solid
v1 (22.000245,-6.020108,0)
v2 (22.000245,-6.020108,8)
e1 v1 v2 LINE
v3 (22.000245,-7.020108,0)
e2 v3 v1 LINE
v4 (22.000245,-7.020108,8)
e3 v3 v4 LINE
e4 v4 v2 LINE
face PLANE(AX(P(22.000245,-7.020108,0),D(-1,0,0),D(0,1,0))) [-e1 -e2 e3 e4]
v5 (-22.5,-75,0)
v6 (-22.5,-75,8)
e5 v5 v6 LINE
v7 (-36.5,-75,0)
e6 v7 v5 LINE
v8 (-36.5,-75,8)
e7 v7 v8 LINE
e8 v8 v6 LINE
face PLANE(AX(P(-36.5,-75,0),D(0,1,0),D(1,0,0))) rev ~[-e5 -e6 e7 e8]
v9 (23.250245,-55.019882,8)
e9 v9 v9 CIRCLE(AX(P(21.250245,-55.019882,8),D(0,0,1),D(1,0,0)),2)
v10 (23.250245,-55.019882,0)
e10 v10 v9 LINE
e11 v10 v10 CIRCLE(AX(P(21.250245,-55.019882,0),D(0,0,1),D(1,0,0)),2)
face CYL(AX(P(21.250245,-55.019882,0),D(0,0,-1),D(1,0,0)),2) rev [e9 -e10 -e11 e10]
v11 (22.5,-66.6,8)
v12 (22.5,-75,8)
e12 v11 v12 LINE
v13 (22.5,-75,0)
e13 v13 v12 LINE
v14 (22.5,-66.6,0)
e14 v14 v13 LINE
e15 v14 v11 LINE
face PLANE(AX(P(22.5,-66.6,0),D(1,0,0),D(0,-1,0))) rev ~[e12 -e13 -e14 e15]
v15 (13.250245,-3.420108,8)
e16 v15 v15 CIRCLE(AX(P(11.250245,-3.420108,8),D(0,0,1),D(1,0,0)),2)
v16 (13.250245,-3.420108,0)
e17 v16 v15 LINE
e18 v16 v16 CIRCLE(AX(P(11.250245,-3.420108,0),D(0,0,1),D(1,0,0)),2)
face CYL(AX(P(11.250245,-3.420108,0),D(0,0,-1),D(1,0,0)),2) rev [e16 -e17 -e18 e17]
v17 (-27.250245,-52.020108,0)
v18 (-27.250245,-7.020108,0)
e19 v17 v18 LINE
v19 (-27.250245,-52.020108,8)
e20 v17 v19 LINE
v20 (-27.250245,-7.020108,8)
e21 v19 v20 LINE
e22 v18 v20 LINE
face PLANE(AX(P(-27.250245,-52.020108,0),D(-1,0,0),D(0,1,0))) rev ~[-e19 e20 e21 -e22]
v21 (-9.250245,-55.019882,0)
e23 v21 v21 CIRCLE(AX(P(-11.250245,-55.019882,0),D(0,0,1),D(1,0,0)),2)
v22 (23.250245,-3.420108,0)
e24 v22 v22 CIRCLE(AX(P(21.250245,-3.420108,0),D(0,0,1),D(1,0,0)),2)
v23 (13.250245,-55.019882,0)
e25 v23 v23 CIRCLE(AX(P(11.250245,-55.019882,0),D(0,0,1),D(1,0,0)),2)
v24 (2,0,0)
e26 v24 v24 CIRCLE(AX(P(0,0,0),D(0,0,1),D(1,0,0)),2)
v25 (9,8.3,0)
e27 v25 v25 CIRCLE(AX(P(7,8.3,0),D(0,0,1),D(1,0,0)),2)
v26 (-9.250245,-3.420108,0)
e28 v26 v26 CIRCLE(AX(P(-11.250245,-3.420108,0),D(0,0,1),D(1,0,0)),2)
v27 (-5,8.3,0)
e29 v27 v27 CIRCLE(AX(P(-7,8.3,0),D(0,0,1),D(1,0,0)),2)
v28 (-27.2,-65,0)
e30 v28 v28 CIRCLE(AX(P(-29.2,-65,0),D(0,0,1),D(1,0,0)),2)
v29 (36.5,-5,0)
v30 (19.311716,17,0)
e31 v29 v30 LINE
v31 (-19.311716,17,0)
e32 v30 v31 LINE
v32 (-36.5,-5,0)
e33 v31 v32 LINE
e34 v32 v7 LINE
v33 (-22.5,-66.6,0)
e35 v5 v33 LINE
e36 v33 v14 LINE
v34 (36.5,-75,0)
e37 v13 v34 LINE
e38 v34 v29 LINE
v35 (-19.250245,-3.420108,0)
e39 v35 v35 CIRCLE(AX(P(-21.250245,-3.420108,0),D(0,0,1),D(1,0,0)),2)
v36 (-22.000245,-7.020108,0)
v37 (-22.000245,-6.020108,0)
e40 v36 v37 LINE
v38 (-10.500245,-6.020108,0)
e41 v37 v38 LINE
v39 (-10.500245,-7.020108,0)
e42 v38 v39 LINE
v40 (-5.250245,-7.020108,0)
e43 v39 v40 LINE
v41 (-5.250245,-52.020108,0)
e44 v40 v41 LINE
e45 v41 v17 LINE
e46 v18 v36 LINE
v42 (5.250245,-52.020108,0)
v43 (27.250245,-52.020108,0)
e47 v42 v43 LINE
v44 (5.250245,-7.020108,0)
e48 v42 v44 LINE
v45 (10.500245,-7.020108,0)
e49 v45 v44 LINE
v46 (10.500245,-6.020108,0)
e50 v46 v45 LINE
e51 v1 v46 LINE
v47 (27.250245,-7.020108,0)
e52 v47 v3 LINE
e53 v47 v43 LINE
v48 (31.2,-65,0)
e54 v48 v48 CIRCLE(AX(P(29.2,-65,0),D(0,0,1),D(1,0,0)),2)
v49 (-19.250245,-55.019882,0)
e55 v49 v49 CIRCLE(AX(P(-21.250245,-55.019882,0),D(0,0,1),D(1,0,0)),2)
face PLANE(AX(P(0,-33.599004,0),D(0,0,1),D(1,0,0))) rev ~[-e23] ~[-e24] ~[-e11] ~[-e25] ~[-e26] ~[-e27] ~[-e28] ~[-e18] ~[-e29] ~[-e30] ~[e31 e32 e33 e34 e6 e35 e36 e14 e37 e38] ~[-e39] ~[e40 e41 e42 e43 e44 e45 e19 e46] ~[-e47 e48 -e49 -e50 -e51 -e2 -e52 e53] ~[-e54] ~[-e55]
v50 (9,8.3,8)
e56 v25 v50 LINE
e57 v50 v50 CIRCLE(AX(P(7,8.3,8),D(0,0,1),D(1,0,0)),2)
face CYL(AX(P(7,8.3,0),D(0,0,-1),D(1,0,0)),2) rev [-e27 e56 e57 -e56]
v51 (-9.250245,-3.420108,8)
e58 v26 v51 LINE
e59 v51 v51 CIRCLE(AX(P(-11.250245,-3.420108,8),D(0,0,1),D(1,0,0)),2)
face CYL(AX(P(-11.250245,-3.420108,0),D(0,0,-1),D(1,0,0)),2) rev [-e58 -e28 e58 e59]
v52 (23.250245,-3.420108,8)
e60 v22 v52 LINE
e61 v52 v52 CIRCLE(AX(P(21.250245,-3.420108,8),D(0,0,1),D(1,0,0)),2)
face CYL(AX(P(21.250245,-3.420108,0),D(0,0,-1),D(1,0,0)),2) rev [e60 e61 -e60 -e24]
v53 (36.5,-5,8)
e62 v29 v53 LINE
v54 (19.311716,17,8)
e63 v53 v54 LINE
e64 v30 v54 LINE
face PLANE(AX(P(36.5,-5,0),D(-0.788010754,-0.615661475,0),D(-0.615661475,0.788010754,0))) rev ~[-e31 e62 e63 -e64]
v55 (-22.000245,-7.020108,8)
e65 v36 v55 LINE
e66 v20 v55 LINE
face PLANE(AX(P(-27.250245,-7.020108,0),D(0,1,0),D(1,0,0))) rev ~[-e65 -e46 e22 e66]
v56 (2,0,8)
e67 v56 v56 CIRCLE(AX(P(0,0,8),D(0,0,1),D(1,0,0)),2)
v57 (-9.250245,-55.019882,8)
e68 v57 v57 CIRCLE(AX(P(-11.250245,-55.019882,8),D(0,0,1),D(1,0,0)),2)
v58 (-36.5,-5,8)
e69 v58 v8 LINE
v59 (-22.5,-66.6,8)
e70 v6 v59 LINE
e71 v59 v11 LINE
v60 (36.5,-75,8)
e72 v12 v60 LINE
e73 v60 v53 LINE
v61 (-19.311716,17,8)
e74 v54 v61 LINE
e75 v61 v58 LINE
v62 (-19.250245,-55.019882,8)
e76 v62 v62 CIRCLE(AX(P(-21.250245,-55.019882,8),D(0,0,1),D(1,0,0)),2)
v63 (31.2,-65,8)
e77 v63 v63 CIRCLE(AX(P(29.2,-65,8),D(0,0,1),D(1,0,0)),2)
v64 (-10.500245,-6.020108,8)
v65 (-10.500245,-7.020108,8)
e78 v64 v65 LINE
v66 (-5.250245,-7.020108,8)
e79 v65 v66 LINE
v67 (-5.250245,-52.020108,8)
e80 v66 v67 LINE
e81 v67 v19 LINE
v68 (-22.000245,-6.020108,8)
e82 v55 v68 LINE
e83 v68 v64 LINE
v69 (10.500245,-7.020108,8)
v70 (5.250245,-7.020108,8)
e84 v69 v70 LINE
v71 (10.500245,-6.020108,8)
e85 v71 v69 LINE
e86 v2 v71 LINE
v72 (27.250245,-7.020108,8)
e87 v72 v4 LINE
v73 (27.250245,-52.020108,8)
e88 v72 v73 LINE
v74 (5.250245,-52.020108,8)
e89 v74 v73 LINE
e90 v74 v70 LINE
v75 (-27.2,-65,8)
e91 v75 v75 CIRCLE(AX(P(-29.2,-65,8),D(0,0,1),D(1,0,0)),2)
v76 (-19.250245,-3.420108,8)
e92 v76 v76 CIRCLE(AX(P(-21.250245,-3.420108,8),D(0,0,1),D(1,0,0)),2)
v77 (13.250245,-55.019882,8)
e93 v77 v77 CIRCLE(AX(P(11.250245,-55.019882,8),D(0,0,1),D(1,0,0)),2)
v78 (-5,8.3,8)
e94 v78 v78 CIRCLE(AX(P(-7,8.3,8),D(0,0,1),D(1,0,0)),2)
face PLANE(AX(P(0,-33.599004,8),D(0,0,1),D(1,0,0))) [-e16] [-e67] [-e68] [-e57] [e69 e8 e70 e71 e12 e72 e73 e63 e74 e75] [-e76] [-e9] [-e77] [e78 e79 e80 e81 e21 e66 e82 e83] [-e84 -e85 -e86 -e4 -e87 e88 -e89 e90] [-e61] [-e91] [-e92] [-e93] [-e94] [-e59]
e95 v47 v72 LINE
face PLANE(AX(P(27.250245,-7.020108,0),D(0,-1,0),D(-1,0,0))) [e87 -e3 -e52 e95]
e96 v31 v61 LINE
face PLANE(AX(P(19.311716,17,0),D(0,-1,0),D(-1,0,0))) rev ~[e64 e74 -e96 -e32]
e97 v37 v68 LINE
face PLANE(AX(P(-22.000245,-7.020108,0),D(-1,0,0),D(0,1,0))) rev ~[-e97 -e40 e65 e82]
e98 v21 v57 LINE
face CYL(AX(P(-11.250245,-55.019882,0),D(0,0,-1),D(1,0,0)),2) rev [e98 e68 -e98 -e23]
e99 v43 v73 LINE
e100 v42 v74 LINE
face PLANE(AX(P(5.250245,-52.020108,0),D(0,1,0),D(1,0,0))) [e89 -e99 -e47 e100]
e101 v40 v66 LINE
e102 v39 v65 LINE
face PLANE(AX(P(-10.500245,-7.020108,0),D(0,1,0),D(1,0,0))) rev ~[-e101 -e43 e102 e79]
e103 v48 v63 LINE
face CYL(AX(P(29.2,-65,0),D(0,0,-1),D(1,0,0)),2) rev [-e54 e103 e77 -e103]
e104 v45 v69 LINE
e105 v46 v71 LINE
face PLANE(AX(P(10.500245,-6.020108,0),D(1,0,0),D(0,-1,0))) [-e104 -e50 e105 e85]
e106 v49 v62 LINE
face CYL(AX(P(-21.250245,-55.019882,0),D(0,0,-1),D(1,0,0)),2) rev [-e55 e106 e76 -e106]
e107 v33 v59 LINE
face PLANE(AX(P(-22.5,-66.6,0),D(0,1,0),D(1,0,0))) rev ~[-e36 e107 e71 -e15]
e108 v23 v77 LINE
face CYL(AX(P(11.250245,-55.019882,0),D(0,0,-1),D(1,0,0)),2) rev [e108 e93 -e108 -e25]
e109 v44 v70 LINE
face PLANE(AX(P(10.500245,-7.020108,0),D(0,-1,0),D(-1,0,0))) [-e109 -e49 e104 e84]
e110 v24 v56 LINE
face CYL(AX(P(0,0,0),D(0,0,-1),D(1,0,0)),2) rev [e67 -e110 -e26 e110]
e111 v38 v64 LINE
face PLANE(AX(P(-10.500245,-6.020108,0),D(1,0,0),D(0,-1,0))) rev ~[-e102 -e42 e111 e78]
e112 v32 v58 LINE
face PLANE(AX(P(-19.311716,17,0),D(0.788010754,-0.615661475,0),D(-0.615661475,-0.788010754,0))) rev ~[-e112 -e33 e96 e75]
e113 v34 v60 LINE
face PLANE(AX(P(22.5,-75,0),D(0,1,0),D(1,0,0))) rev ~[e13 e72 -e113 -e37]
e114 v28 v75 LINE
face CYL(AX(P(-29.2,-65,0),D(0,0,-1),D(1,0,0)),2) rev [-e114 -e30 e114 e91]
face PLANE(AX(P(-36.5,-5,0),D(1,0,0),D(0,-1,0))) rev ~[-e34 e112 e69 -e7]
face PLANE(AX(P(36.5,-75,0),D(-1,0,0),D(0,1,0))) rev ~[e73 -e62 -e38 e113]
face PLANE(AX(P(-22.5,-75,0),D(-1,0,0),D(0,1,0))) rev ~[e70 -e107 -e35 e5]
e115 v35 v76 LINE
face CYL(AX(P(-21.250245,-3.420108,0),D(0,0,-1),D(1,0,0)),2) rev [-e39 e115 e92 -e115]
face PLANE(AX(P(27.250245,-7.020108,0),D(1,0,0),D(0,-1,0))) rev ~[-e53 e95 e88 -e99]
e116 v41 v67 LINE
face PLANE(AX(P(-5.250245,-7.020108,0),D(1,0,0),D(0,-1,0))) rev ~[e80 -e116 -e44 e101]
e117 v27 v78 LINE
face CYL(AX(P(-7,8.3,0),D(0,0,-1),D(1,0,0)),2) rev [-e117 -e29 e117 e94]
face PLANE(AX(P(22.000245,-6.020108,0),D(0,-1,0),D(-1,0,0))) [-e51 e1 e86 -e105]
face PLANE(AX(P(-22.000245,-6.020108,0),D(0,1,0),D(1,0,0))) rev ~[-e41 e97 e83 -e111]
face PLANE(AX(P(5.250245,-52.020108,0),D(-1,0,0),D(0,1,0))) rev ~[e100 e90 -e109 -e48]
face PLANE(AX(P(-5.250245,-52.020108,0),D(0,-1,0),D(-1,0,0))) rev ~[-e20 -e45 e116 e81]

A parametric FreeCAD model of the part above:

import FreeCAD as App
import Part
import Sketcher
from FreeCAD import Vector
Q = App.Units.Quantity


def add_polygon(sketch, points):
    """Adds a closed chain of lines whose ends are joined by coincident constraints."""
    first, n = sketch.GeometryCount, len(points)
    for a, b in zip(points, points[1:] + points[:1]):
        sketch.addGeometry(Part.LineSegment(App.Vector(*a, 0), App.Vector(*b, 0)), False)
    for i in range(n):
        sketch.addConstraint(Sketcher.Constraint("Coincident", first + i, 2, first + (i + 1) % n, 1))

doc = App.newDocument("Part")
params = doc.addObject("Spreadsheet::Sheet", "Params")
for row, (alias, value) in enumerate([
    ("sketch1_diameter", "4 mm"),
    ("sketch1_width", "14 mm"),
    ("sketch1_width2", "45 mm"),
    ("sketch1_width3", "22 mm"),
    ("sketch1_height", "70 mm"),
    ("pad1_length", "8 mm"),
], start=1):
    params.set(f"A{row}", alias)
    params.set(f"B{row}", "=" + value)
    params.setAlias(f"B{row}", alias)

body = doc.addObject("PartDesign::Body", "Body")

# Sketch on XY plane
sketch1 = doc.addObject("Sketcher::SketchObject", "Sketch")
body.addObject(sketch1)
sketch1.AttachmentSupport = (doc.XY_Plane, [""])
sketch1.MapMode = "FlatFace"
add_polygon(sketch1, [(19.311716, 17), (-19.311716, 17), (-36.5, -5), (-36.5, -75), (-22.5, -75), (-22.5, -66.6), (22.5, -66.6), (22.5, -75), (36.5, -75), (36.5, -5)])  # lines 0-9
sketch1.addGeometry(Part.Circle(Vector(-29.2, -65, 0), Vector(0, 0, 1), 2), False)  # 10
sketch1.addGeometry(Part.Circle(Vector(-21.250245, -55.019882, 0), Vector(0, 0, 1), 2), False)  # 11
sketch1.addGeometry(Part.Circle(Vector(-11.250245, -55.019882, 0), Vector(0, 0, 1), 2), False)  # 12
add_polygon(sketch1, [(-27.250245, -52.020108), (-27.250245, -7.020108), (-22.000245, -7.020108), (-22.000245, -6.020108), (-10.500245, -6.020108), (-10.500245, -7.020108), (-5.250245, -7.020108), (-5.250245, -52.020108)])  # lines 13-20
sketch1.addGeometry(Part.Circle(Vector(11.250245, -55.019882, 0), Vector(0, 0, 1), 2), False)  # 21
sketch1.addGeometry(Part.Circle(Vector(29.2, -65, 0), Vector(0, 0, 1), 2), False)  # 22
sketch1.addGeometry(Part.Circle(Vector(21.250245, -55.019882, 0), Vector(0, 0, 1), 2), False)  # 23
add_polygon(sketch1, [(5.250245, -7.020108), (10.500245, -7.020108), (10.500245, -6.020108), (22.000245, -6.020108), (22.000245, -7.020108), (27.250245, -7.020108), (27.250245, -52.020108), (5.250245, -52.020108)])  # lines 24-31
sketch1.addGeometry(Part.Circle(Vector(-21.250245, -3.420108, 0), Vector(0, 0, 1), 2), False)  # 32
sketch1.addGeometry(Part.Circle(Vector(-11.250245, -3.420108, 0), Vector(0, 0, 1), 2), False)  # 33
sketch1.addGeometry(Part.Circle(Vector(-7, 8.3, 0), Vector(0, 0, 1), 2), False)  # 34
sketch1.addGeometry(Part.Circle(Vector(0, 0, 0), Vector(0, 0, 1), 2), False)  # 35
sketch1.addGeometry(Part.Circle(Vector(11.250245, -3.420108, 0), Vector(0, 0, 1), 2), False)  # 36
sketch1.addGeometry(Part.Circle(Vector(7, 8.3, 0), Vector(0, 0, 1), 2), False)  # 37
sketch1.addGeometry(Part.Circle(Vector(21.250245, -3.420108, 0), Vector(0, 0, 1), 2), False)  # 38
sketch1.addConstraint([
    Sketcher.Constraint("Horizontal", 0),
    Sketcher.Constraint("Vertical", 2),
    Sketcher.Constraint("Horizontal", 3),
    Sketcher.Constraint("Vertical", 4),
    Sketcher.Constraint("Horizontal", 5),
    Sketcher.Constraint("Vertical", 6),
    Sketcher.Constraint("Horizontal", 7),
    Sketcher.Constraint("Vertical", 8),
    Sketcher.Constraint("Vertical", 13),
    Sketcher.Constraint("Horizontal", 14),
    Sketcher.Constraint("Vertical", 15),
    Sketcher.Constraint("Horizontal", 16),
    Sketcher.Constraint("Vertical", 17),
    Sketcher.Constraint("Horizontal", 18),
    Sketcher.Constraint("Vertical", 19),
    Sketcher.Constraint("Horizontal", 20),
    Sketcher.Constraint("Horizontal", 24),
    Sketcher.Constraint("Vertical", 25),
    Sketcher.Constraint("Horizontal", 26),
    Sketcher.Constraint("Vertical", 27),
    Sketcher.Constraint("Horizontal", 28),
    Sketcher.Constraint("Vertical", 29),
    Sketcher.Constraint("Horizontal", 30),
    Sketcher.Constraint("Vertical", 31),
    Sketcher.Constraint("Coincident", 35, 3, -1, 1),
    Sketcher.Constraint("Equal", 10, 11),
    Sketcher.Constraint("Equal", 11, 12),
    Sketcher.Constraint("Equal", 12, 21),
    Sketcher.Constraint("Equal", 21, 22),
    Sketcher.Constraint("Equal", 22, 23),
    Sketcher.Constraint("Equal", 23, 32),
    Sketcher.Constraint("Equal", 32, 33),
    Sketcher.Constraint("Equal", 33, 34),
    Sketcher.Constraint("Equal", 34, 35),
    Sketcher.Constraint("Equal", 35, 36),
    Sketcher.Constraint("Equal", 36, 37),
    Sketcher.Constraint("Equal", 37, 38),
    Sketcher.Constraint("Symmetric", 12, 3, 21, 3, -2),
    Sketcher.Constraint("Symmetric", 10, 3, 22, 3, -2),
    Sketcher.Constraint("Symmetric", 11, 3, 23, 3, -2),
    Sketcher.Constraint("Symmetric", 33, 3, 36, 3, -2),
    Sketcher.Constraint("Symmetric", 34, 3, 37, 3, -2),
    Sketcher.Constraint("Symmetric", 32, 3, 38, 3, -2),
    Sketcher.Constraint("Symmetric", 3, 2, 6, 2, -2),
    Sketcher.Constraint("Symmetric", 1, 2, 8, 2, -2),
    Sketcher.Constraint("Symmetric", 17, 2, 24, 2, -2),
    Sketcher.Constraint("Symmetric", 15, 2, 26, 2, -2),
    Sketcher.Constraint("Symmetric", 13, 2, 28, 2, -2),
    Sketcher.Constraint("Symmetric", 19, 2, 30, 2, -2),
    Sketcher.Constraint("Horizontal", 11, 3, 12, 3),
    Sketcher.Constraint("Horizontal", 32, 3, 33, 3),
    Sketcher.Constraint("Horizontal", 14, 2, 17, 2),
    Sketcher.Constraint("Vertical", 11, 3, 32, 3),
    Sketcher.Constraint("Vertical", 12, 3, 33, 3),
    Sketcher.Constraint("Equal", 14, 18),
    Sketcher.Constraint("Equal", 5, 13),
    Sketcher.Constraint("Equal", 1, 9),
    Sketcher.Constraint("Diameter", 10, Q("4 mm")),
    Sketcher.Constraint("DistanceX", 3, 1, 3, 2, Q("14 mm")),
    Sketcher.Constraint("DistanceX", 5, 1, 5, 2, Q("45 mm")),
    Sketcher.Constraint("DistanceX", 20, 2, 20, 1, Q("22 mm")),
    Sketcher.Constraint("DistanceY", 2, 2, 2, 1, Q("70 mm")),
    Sketcher.Constraint("DistanceY", 15, 1, 15, 2, Q("1 mm")),
    Sketcher.Constraint("Angle", 1, Q("-128 deg")),
    Sketcher.Constraint("DistanceX", 16, 1, 16, 2, Q("11.5 mm")),
    Sketcher.Constraint("DistanceY", 4, 1, 4, 2, Q("8.4 mm")),
    Sketcher.Constraint("DistanceY", 10, 3, -1, 1, Q("65 mm")),
    Sketcher.Constraint("DistanceX", 34, 3, -1, 1, Q("7 mm")),
    Sketcher.Constraint("DistanceY", -1, 1, 0, 2, Q("17 mm")),
    Sketcher.Constraint("DistanceY", 1, 2, -1, 1, Q("5 mm")),
    Sketcher.Constraint("DistanceX", 11, 3, 12, 3, Q("10 mm")),
    Sketcher.Constraint("DistanceX", 13, 2, 32, 3, Q("6 mm")),
    Sketcher.Constraint("DistanceX", 10, 3, -1, 1, Q("29.2 mm")),
    Sketcher.Constraint("DistanceY", -1, 1, 34, 3, Q("8.3 mm")),
    Sketcher.Constraint("DistanceY", 13, 2, 32, 3, Q("3.6 mm")),
    Sketcher.Constraint("DistanceX", 12, 3, 21, 3, Q("22.50049 mm")),
    Sketcher.Constraint("DistanceY", 11, 3, -1, 1, Q("55.019882 mm")),
    Sketcher.Constraint("DistanceY", 32, 3, -1, 1, Q("3.420108 mm")),
])
sketch1.setExpression("Constraints[83]", "Params.sketch1_diameter")
sketch1.setExpression("Constraints[84]", "Params.sketch1_width")
sketch1.setExpression("Constraints[85]", "Params.sketch1_width2")
sketch1.setExpression("Constraints[86]", "Params.sketch1_width3")
sketch1.setExpression("Constraints[87]", "Params.sketch1_height")
pad1 = doc.addObject("PartDesign::Pad", "Pad")
body.addObject(pad1)
pad1.Profile = sketch1
pad1.setExpression("Length", "Params.pad1_length")

doc.recompute()
